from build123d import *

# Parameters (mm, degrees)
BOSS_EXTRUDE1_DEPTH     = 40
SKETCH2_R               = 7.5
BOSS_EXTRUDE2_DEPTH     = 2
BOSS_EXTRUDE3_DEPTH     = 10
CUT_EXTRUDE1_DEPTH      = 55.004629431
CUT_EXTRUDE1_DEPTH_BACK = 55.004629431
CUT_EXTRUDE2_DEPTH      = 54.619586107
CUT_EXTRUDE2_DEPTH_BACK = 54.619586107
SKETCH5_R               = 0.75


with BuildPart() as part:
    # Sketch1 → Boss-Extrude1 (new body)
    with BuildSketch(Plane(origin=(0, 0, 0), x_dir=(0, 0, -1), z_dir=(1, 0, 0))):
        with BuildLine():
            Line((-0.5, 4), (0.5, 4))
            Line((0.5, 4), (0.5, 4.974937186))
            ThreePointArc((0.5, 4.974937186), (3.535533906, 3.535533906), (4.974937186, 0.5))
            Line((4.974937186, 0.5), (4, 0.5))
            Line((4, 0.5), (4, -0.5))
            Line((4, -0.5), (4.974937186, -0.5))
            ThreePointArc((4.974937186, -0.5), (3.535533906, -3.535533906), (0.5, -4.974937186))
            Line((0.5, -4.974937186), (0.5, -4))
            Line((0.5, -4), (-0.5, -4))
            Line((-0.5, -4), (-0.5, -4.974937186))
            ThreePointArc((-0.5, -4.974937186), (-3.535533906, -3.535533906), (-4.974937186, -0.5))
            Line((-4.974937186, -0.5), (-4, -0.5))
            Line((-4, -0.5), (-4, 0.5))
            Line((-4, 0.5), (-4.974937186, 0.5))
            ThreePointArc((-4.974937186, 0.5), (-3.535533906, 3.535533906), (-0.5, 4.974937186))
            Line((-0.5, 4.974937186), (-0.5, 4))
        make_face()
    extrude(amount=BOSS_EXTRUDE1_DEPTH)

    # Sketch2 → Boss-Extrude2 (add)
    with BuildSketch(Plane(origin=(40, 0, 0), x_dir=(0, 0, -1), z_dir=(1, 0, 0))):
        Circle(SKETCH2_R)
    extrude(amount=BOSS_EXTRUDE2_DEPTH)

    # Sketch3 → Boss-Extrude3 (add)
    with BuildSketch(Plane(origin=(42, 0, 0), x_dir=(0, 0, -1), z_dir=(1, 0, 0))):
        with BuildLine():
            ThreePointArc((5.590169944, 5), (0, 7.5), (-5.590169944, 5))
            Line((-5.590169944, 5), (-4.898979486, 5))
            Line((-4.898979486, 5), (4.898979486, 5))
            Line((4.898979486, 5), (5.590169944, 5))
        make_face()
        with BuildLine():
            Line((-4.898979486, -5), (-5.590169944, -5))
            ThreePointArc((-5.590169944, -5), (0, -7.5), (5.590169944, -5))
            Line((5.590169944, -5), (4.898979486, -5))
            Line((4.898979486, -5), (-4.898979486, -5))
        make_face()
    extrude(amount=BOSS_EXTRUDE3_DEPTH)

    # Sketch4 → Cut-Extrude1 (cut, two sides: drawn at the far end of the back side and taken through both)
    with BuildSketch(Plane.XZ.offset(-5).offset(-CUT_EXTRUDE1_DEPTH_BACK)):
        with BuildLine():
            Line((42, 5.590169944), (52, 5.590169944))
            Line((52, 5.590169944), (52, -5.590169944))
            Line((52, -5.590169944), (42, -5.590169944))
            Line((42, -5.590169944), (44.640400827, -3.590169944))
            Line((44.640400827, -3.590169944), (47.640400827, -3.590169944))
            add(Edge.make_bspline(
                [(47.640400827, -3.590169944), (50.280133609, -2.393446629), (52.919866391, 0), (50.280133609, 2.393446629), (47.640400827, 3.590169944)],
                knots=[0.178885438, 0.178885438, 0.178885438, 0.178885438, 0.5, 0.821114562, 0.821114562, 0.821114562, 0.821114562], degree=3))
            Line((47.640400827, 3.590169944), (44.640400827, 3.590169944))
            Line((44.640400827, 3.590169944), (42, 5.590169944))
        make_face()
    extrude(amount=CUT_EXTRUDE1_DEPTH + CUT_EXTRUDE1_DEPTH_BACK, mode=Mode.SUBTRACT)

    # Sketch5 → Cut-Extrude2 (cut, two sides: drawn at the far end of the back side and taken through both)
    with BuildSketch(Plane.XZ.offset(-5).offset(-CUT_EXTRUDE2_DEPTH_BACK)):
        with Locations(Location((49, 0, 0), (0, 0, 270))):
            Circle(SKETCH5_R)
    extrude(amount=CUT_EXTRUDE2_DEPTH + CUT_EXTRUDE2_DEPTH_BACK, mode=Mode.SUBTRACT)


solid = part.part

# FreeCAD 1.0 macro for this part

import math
import FreeCAD as App
import Part
import Sketcher
from FreeCAD import Vector

doc = App.newDocument("Part")
body = doc.addObject("PartDesign::Body", "Body")

# Sketch on YZ plane
sketch1 = body.newObject("Sketcher::SketchObject", "Sketch")
sketch1.AttachmentSupport = (doc.getObject("YZ_Plane"), [""])
sketch1.MapMode = "FlatFace"
sketch1.addGeometry(Part.LineSegment(Vector(4, -0.5, 0), Vector(4, 0.5, 0)), False)
sketch1.addGeometry(Part.LineSegment(Vector(4, 0.5, 0), Vector(4.974937, 0.5, 0)), False)
sketch1.addGeometry(Part.ArcOfCircle(Part.Circle(Vector(0, 0, 0), Vector(0, 0, 1), 5), math.radians(5.73917), math.radians(84.26083)), False)
sketch1.addGeometry(Part.LineSegment(Vector(0.5, 4.974937, 0), Vector(0.5, 4, 0)), False)
sketch1.addGeometry(Part.LineSegment(Vector(0.5, 4, 0), Vector(-0.5, 4, 0)), False)
sketch1.addGeometry(Part.LineSegment(Vector(-0.5, 4, 0), Vector(-0.5, 4.974937, 0)), False)
sketch1.addGeometry(Part.ArcOfCircle(Part.Circle(Vector(0, 0, 0), Vector(0, 0, 1), 5), math.radians(95.73917), math.radians(174.26083)), False)
sketch1.addGeometry(Part.LineSegment(Vector(-4.974937, 0.5, 0), Vector(-4, 0.5, 0)), False)
sketch1.addGeometry(Part.LineSegment(Vector(-4, 0.5, 0), Vector(-4, -0.5, 0)), False)
sketch1.addGeometry(Part.LineSegment(Vector(-4, -0.5, 0), Vector(-4.974937, -0.5, 0)), False)
sketch1.addGeometry(Part.ArcOfCircle(Part.Circle(Vector(0, 0, 0), Vector(0, 0, 1), 5), math.radians(-174.26083), math.radians(-95.73917)), False)
sketch1.addGeometry(Part.LineSegment(Vector(-0.5, -4.974937, 0), Vector(-0.5, -4, 0)), False)
sketch1.addGeometry(Part.LineSegment(Vector(-0.5, -4, 0), Vector(0.5, -4, 0)), False)
sketch1.addGeometry(Part.LineSegment(Vector(0.5, -4, 0), Vector(0.5, -4.974937, 0)), False)
sketch1.addGeometry(Part.ArcOfCircle(Part.Circle(Vector(0, 0, 0), Vector(0, 0, 1), 5), math.radians(-84.26083), math.radians(-5.73917)), False)
sketch1.addGeometry(Part.LineSegment(Vector(4.974937, -0.5, 0), Vector(4, -0.5, 0)), False)
sketch1.addConstraint(Sketcher.Constraint("Coincident", 0, 2, 1, 1))
sketch1.addConstraint(Sketcher.Constraint("Coincident", 1, 2, 2, 1))
sketch1.addConstraint(Sketcher.Constraint("Coincident", 2, 2, 3, 1))
sketch1.addConstraint(Sketcher.Constraint("Coincident", 3, 2, 4, 1))
sketch1.addConstraint(Sketcher.Constraint("Coincident", 4, 2, 5, 1))
sketch1.addConstraint(Sketcher.Constraint("Coincident", 5, 2, 6, 1))
sketch1.addConstraint(Sketcher.Constraint("Coincident", 6, 2, 7, 1))
sketch1.addConstraint(Sketcher.Constraint("Coincident", 7, 2, 8, 1))
sketch1.addConstraint(Sketcher.Constraint("Coincident", 8, 2, 9, 1))
sketch1.addConstraint(Sketcher.Constraint("Coincident", 9, 2, 10, 1))
sketch1.addConstraint(Sketcher.Constraint("Coincident", 10, 2, 11, 1))
sketch1.addConstraint(Sketcher.Constraint("Coincident", 11, 2, 12, 1))
sketch1.addConstraint(Sketcher.Constraint("Coincident", 12, 2, 13, 1))
sketch1.addConstraint(Sketcher.Constraint("Coincident", 13, 2, 14, 1))
sketch1.addConstraint(Sketcher.Constraint("Coincident", 14, 2, 15, 1))
sketch1.addConstraint(Sketcher.Constraint("Coincident", 15, 2, 0, 1))
sketch1.addConstraint(Sketcher.Constraint("Vertical", 0))
sketch1.addConstraint(Sketcher.Constraint("Horizontal", 1))
sketch1.addConstraint(Sketcher.Constraint("Vertical", 3))
sketch1.addConstraint(Sketcher.Constraint("Horizontal", 4))
sketch1.addConstraint(Sketcher.Constraint("Vertical", 5))
sketch1.addConstraint(Sketcher.Constraint("Horizontal", 7))
sketch1.addConstraint(Sketcher.Constraint("Vertical", 8))
sketch1.addConstraint(Sketcher.Constraint("Horizontal", 9))
sketch1.addConstraint(Sketcher.Constraint("Vertical", 11))
sketch1.addConstraint(Sketcher.Constraint("Horizontal", 12))
sketch1.addConstraint(Sketcher.Constraint("Vertical", 13))
sketch1.addConstraint(Sketcher.Constraint("Horizontal", 15))
sketch1.addConstraint(Sketcher.Constraint("Coincident", 2, 3, -1, 1))
sketch1.addConstraint(Sketcher.Constraint("Coincident", 6, 3, -1, 1))
sketch1.addConstraint(Sketcher.Constraint("Coincident", 10, 3, -1, 1))
sketch1.addConstraint(Sketcher.Constraint("Coincident", 14, 3, -1, 1))
sketch1.addConstraint(Sketcher.Constraint("Equal", 2, 6))
sketch1.addConstraint(Sketcher.Constraint("Equal", 6, 10))
sketch1.addConstraint(Sketcher.Constraint("Equal", 10, 14))
sketch1.addConstraint(Sketcher.Constraint("Symmetric", 0, 2, 8, 2, -1, 1))
sketch1.addConstraint(Sketcher.Constraint("Symmetric", 3, 2, 11, 2, -1, 1))
sketch1.addConstraint(Sketcher.Constraint("Horizontal", 2, 2, 5, 2))
sketch1.addConstraint(Sketcher.Constraint("Horizontal", 1, 2, 6, 2))
sketch1.addConstraint(Sketcher.Constraint("Horizontal", 10, 2, 13, 2))
sketch1.addConstraint(Sketcher.Constraint("Horizontal", 9, 2, 14, 2))
sketch1.addConstraint(Sketcher.Constraint("Equal", 12, 0))
sketch1.addConstraint(Sketcher.Constraint("Equal", 15, 3))
sketch1.addConstraint(Sketcher.Constraint("Radius", 2, 5.0))
sketch1.addConstraint(Sketcher.Constraint("DistanceX", 4, 2, 4, 1, 1.0))
sketch1.addConstraint(Sketcher.Constraint("DistanceX", -1, 1, 0, 2, 4.0))
pad1 = body.newObject("PartDesign::Pad", "Pad")
pad1.Profile = sketch1
pad1.Length = 40

# Sketch on YZ plane
sketch2 = body.newObject("Sketcher::SketchObject", "Sketch001")
sketch2.AttachmentSupport = (doc.getObject("YZ_Plane"), [""])
sketch2.MapMode = "FlatFace"
sketch2.AttachmentOffset = App.Placement(Vector(0, 0, 40), App.Rotation())
sketch2.addGeometry(Part.Circle(Vector(0, 0, 0), Vector(0, 0, 1), 7.5), False)
sketch2.addConstraint(Sketcher.Constraint("Coincident", 0, 3, -1, 1))
sketch2.addConstraint(Sketcher.Constraint("Diameter", 0, 15.0))
pad2 = body.newObject("PartDesign::Pad", "Pad001")
pad2.Profile = sketch2
pad2.Length = 2

# Sketch on YZ plane
sketch3 = body.newObject("Sketcher::SketchObject", "Sketch002")
sketch3.AttachmentSupport = (doc.getObject("YZ_Plane"), [""])
sketch3.MapMode = "FlatFace"
sketch3.AttachmentOffset = App.Placement(Vector(0, 0, 42), App.Rotation())
sketch3.addGeometry(Part.ArcOfCircle(Part.Circle(Vector(0, 0, 0), Vector(0, 0, 1), 7.5), math.radians(-48.189685), math.radians(48.189685)), False)
sketch3.addGeometry(Part.LineSegment(Vector(5, 5.59017, 0), Vector(5, -5.59017, 0)), False)
sketch3.addGeometry(Part.ArcOfCircle(Part.Circle(Vector(0, 0, 0), Vector(0, 0, 1), 7.5), math.radians(131.810315), math.radians(228.189685)), False)
sketch3.addGeometry(Part.LineSegment(Vector(-5, -5.59017, 0), Vector(-5, 5.59017, 0)), False)
sketch3.addConstraint(Sketcher.Constraint("Coincident", 0, 1, 1, 2))
sketch3.addConstraint(Sketcher.Constraint("Coincident", 1, 1, 0, 2))
sketch3.addConstraint(Sketcher.Constraint("Coincident", 2, 1, 3, 2))
sketch3.addConstraint(Sketcher.Constraint("Coincident", 3, 1, 2, 2))
sketch3.addConstraint(Sketcher.Constraint("Vertical", 1))
sketch3.addConstraint(Sketcher.Constraint("Vertical", 3))
sketch3.addConstraint(Sketcher.Constraint("Coincident", 0, 3, -1, 1))
sketch3.addConstraint(Sketcher.Constraint("Coincident", 2, 3, -1, 1))
sketch3.addConstraint(Sketcher.Constraint("Equal", 0, 2))
sketch3.addConstraint(Sketcher.Constraint("Horizontal", 1, 1, 2, 1))
sketch3.addConstraint(Sketcher.Constraint("Radius", 0, 7.5))
sketch3.addConstraint(Sketcher.Constraint("DistanceX", -1, 1, 0, 1, 5.0))
pad3 = body.newObject("PartDesign::Pad", "Pad002")
pad3.Profile = sketch3
pad3.Length = 10

# Sketch on XZ plane
sketch4 = body.newObject("Sketcher::SketchObject", "Sketch003")
sketch4.AttachmentSupport = (doc.getObject("XZ_Plane"), [""])
sketch4.MapMode = "FlatFace"
sketch4.AttachmentOffset = App.Placement(Vector(0, 0, -5), App.Rotation())
sketch4.addGeometry(Part.LineSegment(Vector(52, 5.59017, 0), Vector(42, 5.59017, 0)), False)
sketch4.addGeometry(Part.LineSegment(Vector(42, 5.59017, 0), Vector(44.640401, 3.59017, 0)), False)
sketch4.addGeometry(Part.LineSegment(Vector(44.640401, 3.59017, 0), Vector(47.640401, 3.59017, 0)), False)
sketch4.addGeometry(Part.BSplineCurve([Vector(47.640401, -3.59017, 0), Vector(50.280134, -2.393447, 0), Vector(52.919866, 0, 0), Vector(50.280134, 2.393447, 0), Vector(47.640401, 3.59017, 0)], [4, 1, 4], [0.178885438, 0.5, 0.821114562], False, 3, [1, 1, 1, 1, 1], False), False)
sketch4.addGeometry(Part.LineSegment(Vector(47.640401, -3.59017, 0), Vector(44.640401, -3.59017, 0)), False)
sketch4.addGeometry(Part.LineSegment(Vector(44.640401, -3.59017, 0), Vector(42, -5.59017, 0)), False)
sketch4.addGeometry(Part.LineSegment(Vector(42, -5.59017, 0), Vector(52, -5.59017, 0)), False)
sketch4.addGeometry(Part.LineSegment(Vector(52, -5.59017, 0), Vector(52, 5.59017, 0)), False)
sketch4.addConstraint(Sketcher.Constraint("Block", 3))
sketch4.addConstraint(Sketcher.Constraint("Coincident", 0, 2, 1, 1))
sketch4.addConstraint(Sketcher.Constraint("Coincident", 1, 2, 2, 1))
sketch4.addConstraint(Sketcher.Constraint("Coincident", 2, 2, 3, 2))
sketch4.addConstraint(Sketcher.Constraint("Coincident", 3, 1, 4, 1))
sketch4.addConstraint(Sketcher.Constraint("Coincident", 4, 2, 5, 1))
sketch4.addConstraint(Sketcher.Constraint("Coincident", 5, 2, 6, 1))
sketch4.addConstraint(Sketcher.Constraint("Coincident", 6, 2, 7, 1))
sketch4.addConstraint(Sketcher.Constraint("Coincident", 7, 2, 0, 1))
sketch4.addConstraint(Sketcher.Constraint("Horizontal", 0))
sketch4.addConstraint(Sketcher.Constraint("Horizontal", 2))
sketch4.addConstraint(Sketcher.Constraint("Horizontal", 4))
sketch4.addConstraint(Sketcher.Constraint("Horizontal", 6))
sketch4.addConstraint(Sketcher.Constraint("Vertical", 7))
sketch4.addConstraint(Sketcher.Constraint("Symmetric", 0, 2, 5, 2, -1))
sketch4.addConstraint(Sketcher.Constraint("Vertical", 1, 2, 4, 2))
sketch4.addConstraint(Sketcher.Constraint("DistanceX", 0, 2, 0, 1, 10.0))
sketch4.addConstraint(Sketcher.Constraint("DistanceX", 2, 1, 2, 2, 3.0))
sketch4.addConstraint(Sketcher.Constraint("DistanceX", -1, 1, 0, 2, 42.0))
sketch4.addConstraint(Sketcher.Constraint("DistanceY", 1, 2, 0, 2, 2.0))
pocket1 = body.newObject("PartDesign::Pocket", "Pocket")
pocket1.Profile = sketch4
pocket1.Type = "ThroughAll"
pocket1.Midplane = True

# Sketch on XZ plane
sketch5 = body.newObject("Sketcher::SketchObject", "Sketch004")
sketch5.AttachmentSupport = (doc.getObject("XZ_Plane"), [""])
sketch5.MapMode = "FlatFace"
sketch5.AttachmentOffset = App.Placement(Vector(0, 0, -5), App.Rotation())
sketch5.addGeometry(Part.Circle(Vector(49, 0, 0), Vector(0, 0, 1), 0.75), False)
sketch5.addConstraint(Sketcher.Constraint("PointOnObject", 0, 3, -1))
sketch5.addConstraint(Sketcher.Constraint("Diameter", 0, 1.5))
sketch5.addConstraint(Sketcher.Constraint("DistanceX", -1, 1, 0, 3, 49.0))
pocket2 = body.newObject("PartDesign::Pocket", "Pocket001")
pocket2.Profile = sketch5
pocket2.Type = "ThroughAll"
pocket2.Midplane = True

doc.recompute()
